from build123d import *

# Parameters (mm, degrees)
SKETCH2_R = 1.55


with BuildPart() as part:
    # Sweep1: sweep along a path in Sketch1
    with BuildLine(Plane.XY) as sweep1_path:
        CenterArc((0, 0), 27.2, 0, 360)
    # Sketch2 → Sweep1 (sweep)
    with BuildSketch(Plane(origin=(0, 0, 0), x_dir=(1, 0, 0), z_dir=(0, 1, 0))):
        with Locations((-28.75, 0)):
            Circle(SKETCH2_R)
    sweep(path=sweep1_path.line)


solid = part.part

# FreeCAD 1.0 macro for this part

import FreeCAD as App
import Part
import Sketcher
Q = App.Units.Quantity

doc = App.newDocument("Part")
body = doc.addObject("PartDesign::Body", "Body")

# Sketch on XZ plane
sketch1 = body.newObject("Sketcher::SketchObject", "Sketch")
sketch1.AttachmentSupport = (doc.getObject("XZ_Plane"), [""])
sketch1.MapMode = "FlatFace"
sketch1.addGeometry(Part.Circle(App.Vector(-28.75, 0, 0), App.Vector(0, 0, 1), 1.55), False)
sketch1.addConstraint(Sketcher.Constraint("PointOnObject", 0, 3, -1))
sketch1.addConstraint(Sketcher.Constraint("Diameter", 0, Q("3.1 mm")))
sketch1.addConstraint(Sketcher.Constraint("DistanceX", 0, 3, -1, 1, Q("28.75 mm")))

# Sketch on XY plane
sketch2 = body.newObject("Sketcher::SketchObject", "Sketch001")
sketch2.AttachmentSupport = (doc.getObject("XY_Plane"), [""])
sketch2.MapMode = "FlatFace"
sketch2.addGeometry(Part.Circle(App.Vector(0, 0, 0), App.Vector(0, 0, 1), 27.2), False)
sketch2.addConstraint(Sketcher.Constraint("Coincident", 0, 3, -1, 1))
sketch2.addConstraint(Sketcher.Constraint("Diameter", 0, Q("54.4 mm")))
doc.recompute()

additivepipe = body.newObject("PartDesign::AdditivePipe", "AdditivePipe")
additivepipe.Profile = sketch1
additivepipe.Spine = (sketch2, ["Edge1"])

doc.recompute()
